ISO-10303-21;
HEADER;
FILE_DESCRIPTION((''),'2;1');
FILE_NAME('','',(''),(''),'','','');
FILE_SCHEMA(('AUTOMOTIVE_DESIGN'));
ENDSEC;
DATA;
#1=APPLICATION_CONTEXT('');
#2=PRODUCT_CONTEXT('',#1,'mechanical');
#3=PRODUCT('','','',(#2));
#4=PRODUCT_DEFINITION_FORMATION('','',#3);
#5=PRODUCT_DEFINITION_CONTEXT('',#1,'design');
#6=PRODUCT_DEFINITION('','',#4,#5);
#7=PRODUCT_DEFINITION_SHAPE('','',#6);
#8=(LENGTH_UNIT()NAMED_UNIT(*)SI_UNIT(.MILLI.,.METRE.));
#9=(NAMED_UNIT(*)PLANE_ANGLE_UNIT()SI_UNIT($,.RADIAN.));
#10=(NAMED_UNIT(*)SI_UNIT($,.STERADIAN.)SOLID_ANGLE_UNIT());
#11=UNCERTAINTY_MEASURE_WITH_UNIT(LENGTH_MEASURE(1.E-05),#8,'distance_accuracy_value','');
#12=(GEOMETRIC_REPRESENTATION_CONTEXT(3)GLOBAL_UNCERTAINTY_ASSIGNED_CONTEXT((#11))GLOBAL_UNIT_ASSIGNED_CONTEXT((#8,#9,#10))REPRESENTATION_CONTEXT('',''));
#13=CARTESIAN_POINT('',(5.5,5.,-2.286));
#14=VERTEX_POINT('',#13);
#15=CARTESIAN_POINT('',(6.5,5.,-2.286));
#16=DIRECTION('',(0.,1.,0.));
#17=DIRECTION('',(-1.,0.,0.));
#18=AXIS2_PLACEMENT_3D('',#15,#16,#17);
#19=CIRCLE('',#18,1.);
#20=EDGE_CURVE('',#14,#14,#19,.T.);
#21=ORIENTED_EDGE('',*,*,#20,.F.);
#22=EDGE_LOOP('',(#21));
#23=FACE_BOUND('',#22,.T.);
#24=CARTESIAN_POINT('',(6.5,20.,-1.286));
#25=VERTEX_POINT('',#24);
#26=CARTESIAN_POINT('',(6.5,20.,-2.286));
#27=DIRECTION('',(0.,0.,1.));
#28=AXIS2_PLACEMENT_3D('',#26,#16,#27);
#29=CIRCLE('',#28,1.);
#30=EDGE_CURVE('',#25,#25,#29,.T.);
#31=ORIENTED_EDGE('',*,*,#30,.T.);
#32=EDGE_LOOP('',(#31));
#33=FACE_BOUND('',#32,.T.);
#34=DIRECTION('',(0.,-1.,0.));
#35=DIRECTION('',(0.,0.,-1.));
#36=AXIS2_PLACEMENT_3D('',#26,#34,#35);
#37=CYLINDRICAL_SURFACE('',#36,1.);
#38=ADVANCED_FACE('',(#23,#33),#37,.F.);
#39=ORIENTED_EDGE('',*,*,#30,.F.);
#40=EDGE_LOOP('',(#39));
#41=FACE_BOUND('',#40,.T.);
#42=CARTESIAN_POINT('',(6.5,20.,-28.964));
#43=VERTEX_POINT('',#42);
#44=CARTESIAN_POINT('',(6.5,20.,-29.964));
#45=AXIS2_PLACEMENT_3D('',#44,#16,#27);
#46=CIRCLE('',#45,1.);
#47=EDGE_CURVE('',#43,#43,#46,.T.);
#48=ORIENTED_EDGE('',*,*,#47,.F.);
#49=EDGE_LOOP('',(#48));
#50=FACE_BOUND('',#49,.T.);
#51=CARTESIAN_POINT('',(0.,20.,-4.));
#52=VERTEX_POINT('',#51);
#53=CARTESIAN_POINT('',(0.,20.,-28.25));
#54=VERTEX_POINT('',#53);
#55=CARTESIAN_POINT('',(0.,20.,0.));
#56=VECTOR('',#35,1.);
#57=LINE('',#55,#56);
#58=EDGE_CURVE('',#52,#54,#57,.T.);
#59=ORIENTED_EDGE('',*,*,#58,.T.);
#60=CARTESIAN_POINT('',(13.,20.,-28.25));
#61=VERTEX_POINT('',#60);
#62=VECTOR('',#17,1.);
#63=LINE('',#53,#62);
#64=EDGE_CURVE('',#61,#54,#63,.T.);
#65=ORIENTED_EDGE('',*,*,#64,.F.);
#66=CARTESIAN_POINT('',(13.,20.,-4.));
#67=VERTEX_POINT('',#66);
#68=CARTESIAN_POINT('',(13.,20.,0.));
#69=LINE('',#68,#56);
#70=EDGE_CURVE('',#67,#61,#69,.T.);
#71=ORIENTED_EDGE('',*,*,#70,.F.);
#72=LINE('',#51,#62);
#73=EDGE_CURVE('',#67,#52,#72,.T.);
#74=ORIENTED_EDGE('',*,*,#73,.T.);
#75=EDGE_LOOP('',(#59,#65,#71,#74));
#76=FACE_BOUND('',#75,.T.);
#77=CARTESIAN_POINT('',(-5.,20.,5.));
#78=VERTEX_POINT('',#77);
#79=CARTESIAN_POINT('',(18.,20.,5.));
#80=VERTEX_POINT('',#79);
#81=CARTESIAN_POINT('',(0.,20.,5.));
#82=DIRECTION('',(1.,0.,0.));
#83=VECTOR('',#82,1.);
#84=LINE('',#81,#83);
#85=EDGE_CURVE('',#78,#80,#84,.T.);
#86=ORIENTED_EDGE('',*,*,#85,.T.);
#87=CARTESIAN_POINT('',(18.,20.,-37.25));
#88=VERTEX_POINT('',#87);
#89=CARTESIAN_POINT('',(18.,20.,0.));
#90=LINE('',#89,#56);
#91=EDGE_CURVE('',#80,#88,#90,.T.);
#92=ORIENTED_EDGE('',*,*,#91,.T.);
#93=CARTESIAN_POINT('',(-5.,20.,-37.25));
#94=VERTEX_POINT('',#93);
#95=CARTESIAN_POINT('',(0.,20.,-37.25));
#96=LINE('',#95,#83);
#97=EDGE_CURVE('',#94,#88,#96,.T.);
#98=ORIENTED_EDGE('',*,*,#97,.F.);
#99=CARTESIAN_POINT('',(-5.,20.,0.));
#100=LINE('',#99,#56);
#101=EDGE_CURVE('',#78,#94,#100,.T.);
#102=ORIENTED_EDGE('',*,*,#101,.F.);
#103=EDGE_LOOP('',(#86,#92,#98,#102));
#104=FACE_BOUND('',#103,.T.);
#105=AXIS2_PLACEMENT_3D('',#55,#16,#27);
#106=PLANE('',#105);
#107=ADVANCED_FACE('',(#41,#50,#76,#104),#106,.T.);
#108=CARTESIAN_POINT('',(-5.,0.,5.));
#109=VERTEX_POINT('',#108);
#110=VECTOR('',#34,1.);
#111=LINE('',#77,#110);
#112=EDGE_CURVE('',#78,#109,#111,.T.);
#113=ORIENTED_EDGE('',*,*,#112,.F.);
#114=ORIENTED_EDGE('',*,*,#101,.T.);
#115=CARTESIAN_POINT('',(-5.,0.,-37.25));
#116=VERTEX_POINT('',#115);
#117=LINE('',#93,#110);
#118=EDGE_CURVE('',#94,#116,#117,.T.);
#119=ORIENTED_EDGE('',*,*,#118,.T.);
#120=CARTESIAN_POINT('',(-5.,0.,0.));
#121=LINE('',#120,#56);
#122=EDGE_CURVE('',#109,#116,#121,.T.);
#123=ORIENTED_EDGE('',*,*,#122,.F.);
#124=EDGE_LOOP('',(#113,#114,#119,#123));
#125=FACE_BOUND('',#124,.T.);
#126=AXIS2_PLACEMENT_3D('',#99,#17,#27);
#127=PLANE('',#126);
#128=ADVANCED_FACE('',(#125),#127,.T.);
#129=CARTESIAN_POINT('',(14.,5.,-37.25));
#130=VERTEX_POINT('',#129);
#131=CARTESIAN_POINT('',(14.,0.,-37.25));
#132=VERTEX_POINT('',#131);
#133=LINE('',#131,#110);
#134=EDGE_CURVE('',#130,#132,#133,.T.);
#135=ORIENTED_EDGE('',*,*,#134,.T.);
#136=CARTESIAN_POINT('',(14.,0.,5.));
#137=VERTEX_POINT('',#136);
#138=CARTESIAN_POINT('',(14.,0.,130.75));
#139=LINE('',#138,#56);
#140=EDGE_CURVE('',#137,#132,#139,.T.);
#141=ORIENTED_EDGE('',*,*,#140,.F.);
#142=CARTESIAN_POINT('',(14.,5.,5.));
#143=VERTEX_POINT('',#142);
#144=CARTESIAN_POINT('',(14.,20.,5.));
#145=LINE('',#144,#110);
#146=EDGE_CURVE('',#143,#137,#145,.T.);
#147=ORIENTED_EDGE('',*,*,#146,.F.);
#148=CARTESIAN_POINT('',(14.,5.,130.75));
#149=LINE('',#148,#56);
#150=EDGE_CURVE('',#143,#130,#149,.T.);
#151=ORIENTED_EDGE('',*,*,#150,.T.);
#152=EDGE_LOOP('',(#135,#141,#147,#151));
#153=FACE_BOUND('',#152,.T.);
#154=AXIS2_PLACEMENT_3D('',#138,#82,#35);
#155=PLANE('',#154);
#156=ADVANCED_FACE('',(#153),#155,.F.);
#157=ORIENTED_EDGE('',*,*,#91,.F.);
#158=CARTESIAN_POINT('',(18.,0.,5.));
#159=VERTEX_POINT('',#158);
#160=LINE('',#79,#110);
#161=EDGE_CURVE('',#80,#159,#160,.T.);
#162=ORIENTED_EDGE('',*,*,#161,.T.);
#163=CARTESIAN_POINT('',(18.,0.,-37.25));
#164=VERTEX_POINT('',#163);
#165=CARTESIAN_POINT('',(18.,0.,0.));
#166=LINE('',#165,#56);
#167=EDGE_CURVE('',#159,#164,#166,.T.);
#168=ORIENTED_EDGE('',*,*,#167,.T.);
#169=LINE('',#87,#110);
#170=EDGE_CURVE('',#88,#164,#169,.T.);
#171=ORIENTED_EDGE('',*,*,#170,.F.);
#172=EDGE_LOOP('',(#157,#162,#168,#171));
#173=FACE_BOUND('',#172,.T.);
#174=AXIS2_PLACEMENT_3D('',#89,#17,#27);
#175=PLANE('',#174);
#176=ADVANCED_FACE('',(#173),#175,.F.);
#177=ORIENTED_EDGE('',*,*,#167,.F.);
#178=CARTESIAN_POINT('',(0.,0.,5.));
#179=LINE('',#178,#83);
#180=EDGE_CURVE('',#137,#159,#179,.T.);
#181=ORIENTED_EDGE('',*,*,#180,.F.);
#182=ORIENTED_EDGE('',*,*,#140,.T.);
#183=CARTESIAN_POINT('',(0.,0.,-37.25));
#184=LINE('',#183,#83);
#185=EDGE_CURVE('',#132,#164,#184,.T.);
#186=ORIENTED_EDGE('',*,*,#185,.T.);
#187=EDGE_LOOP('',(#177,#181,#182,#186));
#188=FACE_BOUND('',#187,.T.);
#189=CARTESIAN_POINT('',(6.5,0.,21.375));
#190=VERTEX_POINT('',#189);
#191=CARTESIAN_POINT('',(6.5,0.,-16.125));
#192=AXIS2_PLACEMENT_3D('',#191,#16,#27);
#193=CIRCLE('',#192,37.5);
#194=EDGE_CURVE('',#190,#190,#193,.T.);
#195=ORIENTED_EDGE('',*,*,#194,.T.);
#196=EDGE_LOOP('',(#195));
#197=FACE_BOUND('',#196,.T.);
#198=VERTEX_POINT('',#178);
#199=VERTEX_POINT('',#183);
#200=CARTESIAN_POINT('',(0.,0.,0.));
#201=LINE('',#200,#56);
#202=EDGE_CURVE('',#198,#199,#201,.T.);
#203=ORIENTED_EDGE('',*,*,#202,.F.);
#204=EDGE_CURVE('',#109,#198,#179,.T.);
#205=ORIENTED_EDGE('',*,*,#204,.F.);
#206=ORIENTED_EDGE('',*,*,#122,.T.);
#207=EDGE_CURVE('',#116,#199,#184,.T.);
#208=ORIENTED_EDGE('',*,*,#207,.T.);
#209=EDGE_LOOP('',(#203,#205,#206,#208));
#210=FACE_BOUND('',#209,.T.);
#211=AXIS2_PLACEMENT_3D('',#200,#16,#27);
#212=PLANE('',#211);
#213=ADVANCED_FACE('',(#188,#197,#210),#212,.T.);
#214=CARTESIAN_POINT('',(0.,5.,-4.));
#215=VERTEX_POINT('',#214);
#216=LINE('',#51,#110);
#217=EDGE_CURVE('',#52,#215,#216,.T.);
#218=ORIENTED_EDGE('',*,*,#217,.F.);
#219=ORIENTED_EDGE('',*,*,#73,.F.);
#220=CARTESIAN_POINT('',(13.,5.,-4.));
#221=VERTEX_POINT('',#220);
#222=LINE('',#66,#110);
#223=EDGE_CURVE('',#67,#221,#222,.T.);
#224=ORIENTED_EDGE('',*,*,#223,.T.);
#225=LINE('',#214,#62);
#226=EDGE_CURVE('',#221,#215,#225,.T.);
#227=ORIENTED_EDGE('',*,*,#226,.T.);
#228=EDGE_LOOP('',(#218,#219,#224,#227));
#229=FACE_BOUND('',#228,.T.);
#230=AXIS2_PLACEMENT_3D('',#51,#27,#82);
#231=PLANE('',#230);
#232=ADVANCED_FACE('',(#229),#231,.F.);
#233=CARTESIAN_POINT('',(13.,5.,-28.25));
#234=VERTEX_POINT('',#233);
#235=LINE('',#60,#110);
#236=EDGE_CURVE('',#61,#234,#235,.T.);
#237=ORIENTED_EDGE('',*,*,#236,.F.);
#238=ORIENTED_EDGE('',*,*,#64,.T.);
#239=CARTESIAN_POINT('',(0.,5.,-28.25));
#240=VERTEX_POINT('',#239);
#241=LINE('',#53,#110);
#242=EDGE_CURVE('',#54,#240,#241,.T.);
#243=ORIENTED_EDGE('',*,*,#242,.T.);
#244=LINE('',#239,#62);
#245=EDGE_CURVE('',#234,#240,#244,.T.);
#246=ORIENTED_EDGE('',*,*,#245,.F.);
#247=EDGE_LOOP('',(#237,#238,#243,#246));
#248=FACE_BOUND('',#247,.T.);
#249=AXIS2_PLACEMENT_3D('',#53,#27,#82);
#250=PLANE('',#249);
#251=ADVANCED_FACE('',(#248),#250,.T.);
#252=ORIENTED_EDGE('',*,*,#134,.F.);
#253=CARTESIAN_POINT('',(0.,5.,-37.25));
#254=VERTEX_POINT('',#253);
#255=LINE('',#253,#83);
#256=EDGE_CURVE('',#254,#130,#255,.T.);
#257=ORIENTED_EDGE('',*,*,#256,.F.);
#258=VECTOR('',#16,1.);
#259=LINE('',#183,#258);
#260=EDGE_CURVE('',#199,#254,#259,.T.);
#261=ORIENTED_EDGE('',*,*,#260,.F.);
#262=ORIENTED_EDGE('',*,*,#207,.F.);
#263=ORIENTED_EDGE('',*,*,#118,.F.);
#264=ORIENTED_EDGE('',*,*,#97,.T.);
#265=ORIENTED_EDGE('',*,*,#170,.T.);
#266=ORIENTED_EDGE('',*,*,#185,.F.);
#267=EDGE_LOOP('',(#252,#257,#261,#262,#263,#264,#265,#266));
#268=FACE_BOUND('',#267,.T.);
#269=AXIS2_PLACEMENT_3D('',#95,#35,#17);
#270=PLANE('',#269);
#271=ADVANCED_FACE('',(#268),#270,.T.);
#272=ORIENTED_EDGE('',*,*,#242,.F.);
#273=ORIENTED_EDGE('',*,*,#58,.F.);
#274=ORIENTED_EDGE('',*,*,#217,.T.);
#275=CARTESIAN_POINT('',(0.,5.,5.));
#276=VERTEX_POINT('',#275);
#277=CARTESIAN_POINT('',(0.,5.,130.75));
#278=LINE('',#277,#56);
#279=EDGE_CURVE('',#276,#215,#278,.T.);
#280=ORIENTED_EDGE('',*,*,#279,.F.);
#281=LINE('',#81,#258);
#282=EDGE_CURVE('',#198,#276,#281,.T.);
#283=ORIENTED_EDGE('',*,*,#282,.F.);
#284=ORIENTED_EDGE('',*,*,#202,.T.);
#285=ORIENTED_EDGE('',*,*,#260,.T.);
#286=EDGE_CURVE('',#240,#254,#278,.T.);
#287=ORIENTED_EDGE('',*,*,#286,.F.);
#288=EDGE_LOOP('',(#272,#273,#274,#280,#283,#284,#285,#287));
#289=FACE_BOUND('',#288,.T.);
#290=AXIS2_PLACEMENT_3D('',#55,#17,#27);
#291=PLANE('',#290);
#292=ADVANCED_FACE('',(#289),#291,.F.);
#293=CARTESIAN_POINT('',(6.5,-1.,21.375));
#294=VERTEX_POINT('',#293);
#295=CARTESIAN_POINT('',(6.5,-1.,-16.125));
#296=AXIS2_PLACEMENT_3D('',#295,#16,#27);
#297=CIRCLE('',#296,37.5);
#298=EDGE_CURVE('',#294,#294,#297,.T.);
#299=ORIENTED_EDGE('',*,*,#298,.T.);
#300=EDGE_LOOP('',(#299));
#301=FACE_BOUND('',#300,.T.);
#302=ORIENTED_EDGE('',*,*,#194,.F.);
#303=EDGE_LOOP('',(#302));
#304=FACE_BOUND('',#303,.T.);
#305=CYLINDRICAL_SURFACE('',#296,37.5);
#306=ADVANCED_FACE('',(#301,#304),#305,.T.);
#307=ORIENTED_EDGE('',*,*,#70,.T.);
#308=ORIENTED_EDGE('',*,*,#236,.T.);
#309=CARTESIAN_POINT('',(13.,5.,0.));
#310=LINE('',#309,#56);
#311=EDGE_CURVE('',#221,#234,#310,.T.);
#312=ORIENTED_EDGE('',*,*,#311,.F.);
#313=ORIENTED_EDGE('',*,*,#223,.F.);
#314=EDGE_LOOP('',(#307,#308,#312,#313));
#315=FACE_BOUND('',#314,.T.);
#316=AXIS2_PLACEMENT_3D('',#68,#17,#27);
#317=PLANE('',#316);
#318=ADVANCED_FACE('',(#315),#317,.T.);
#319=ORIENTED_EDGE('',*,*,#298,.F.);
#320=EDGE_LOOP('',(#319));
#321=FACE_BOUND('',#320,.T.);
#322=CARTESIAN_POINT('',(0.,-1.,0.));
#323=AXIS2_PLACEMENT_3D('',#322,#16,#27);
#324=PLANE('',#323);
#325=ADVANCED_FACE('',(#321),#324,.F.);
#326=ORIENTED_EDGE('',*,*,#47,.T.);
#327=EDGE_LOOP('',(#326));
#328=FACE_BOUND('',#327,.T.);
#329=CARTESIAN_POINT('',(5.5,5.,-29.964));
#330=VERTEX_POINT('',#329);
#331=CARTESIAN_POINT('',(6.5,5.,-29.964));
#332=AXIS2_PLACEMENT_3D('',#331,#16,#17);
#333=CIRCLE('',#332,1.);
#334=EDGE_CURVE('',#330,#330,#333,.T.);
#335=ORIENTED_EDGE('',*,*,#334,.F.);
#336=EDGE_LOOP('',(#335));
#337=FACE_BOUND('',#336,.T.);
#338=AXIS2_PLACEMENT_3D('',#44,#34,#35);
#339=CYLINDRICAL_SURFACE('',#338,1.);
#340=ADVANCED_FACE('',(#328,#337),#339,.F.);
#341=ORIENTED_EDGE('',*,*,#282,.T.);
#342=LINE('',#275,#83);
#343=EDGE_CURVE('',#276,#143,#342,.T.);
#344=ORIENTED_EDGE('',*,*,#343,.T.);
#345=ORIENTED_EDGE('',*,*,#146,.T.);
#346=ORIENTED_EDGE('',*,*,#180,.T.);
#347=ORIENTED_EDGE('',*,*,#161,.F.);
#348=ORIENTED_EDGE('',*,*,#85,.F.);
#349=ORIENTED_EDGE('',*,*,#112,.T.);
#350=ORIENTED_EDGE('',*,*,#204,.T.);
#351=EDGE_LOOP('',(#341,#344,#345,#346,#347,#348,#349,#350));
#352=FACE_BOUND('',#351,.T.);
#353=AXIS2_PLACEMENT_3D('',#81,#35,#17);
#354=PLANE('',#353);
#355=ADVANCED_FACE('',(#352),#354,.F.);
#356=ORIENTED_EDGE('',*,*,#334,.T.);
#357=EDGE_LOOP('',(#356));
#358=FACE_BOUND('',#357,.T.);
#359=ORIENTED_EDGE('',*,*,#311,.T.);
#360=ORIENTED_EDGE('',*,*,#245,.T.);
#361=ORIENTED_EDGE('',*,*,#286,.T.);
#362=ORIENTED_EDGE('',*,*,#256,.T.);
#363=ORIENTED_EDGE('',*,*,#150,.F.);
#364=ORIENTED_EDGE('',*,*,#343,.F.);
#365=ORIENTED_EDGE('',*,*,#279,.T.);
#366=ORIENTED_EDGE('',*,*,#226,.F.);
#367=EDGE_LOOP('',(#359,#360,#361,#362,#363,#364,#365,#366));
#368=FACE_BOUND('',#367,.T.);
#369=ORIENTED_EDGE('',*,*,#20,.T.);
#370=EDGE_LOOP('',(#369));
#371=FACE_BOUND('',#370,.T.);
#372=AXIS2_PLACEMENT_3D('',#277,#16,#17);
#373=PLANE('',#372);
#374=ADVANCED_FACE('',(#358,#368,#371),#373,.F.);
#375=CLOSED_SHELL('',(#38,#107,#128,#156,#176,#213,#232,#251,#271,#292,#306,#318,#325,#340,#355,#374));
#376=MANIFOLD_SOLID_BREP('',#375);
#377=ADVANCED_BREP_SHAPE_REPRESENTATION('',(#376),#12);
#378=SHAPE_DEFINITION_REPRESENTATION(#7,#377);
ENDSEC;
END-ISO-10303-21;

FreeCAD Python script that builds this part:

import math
import FreeCAD as App
import Part
import Sketcher

V = App.Vector
Q = App.Units.Quantity


def add_polygon(sketch, points):
    """Adds a closed chain of lines whose ends are joined by coincident constraints."""
    first, n = sketch.GeometryCount, len(points)
    for a, b in zip(points, points[1:] + points[:1]):
        sketch.addGeometry(Part.LineSegment(App.Vector(*a, 0), App.Vector(*b, 0)), False)
    for i in range(n):
        sketch.addConstraint(Sketcher.Constraint("Coincident", first + i, 2, first + (i + 1) % n, 1))

doc = App.newDocument("Part")
params = doc.addObject("Spreadsheet::Sheet", "Params")
for row, (alias, value) in enumerate([
    ("sketch1_radius", "1 mm"),
    ("sketch1_width", "23 mm"),
    ("sketch1_width2", "13 mm"),
    ("sketch1_height", "42.25 mm"),
    ("pad1_length", "20 mm"),
    ("sketch2_diameter", "75 mm"),
    ("pad2_length", "1 mm"),
    ("sketch3_width", "14 mm"),
    ("sketch3_height", "5 mm"),
    ("pocket1_length", "168 mm"),
], start=1):
    params.set(f"A{row}", alias)
    params.set(f"B{row}", "=" + value)
    params.setAlias(f"B{row}", alias)

body = doc.addObject("PartDesign::Body", "Body")

# Sketch on XZ plane
sketch1 = body.newObject("Sketcher::SketchObject", "Sketch")
sketch1.AttachmentSupport = (doc.getObject("XZ_Plane"), [""])
sketch1.MapMode = "FlatFace"
add_polygon(sketch1, [(-5, -37.25), (-5, 5), (18, 5), (18, -37.25)])  # lines 0-3
add_polygon(sketch1, [(13, -28.25), (13, -4), (0, -4), (0, -28.25)])  # lines 4-7
sketch1.addGeometry(Part.ArcOfCircle(Part.Circle(V(6.5, -2.286, 0), V(0, 0, 1), 1), math.radians(90), math.radians(270)), False)  # 8
sketch1.addGeometry(Part.ArcOfCircle(Part.Circle(V(6.5, -2.286, 0), V(0, 0, 1), 1), math.radians(-90), math.radians(0)), False)  # 9
sketch1.addGeometry(Part.ArcOfCircle(Part.Circle(V(6.5, -2.286, 0), V(0, 0, 1), 1), math.radians(0), math.radians(90)), False)  # 10
sketch1.addGeometry(Part.ArcOfCircle(Part.Circle(V(6.5, -29.964, 0), V(0, 0, 1), 1), math.radians(0), math.radians(90)), False)  # 11
sketch1.addGeometry(Part.ArcOfCircle(Part.Circle(V(6.5, -29.964, 0), V(0, 0, 1), 1), math.radians(90), math.radians(270)), False)  # 12
sketch1.addGeometry(Part.ArcOfCircle(Part.Circle(V(6.5, -29.964, 0), V(0, 0, 1), 1), math.radians(-90), math.radians(0)), False)  # 13
sketch1.addConstraint(Sketcher.Constraint("Tangent", 8, 2, 9, 1))
sketch1.addConstraint(Sketcher.Constraint("Tangent", 9, 2, 10, 1))
sketch1.addConstraint(Sketcher.Constraint("Tangent", 10, 2, 8, 1))
sketch1.addConstraint(Sketcher.Constraint("Tangent", 11, 2, 12, 1))
sketch1.addConstraint(Sketcher.Constraint("Tangent", 12, 2, 13, 1))
sketch1.addConstraint(Sketcher.Constraint("Tangent", 13, 2, 11, 1))
sketch1.addConstraint(Sketcher.Constraint("Vertical", 0))
sketch1.addConstraint(Sketcher.Constraint("Horizontal", 1))
sketch1.addConstraint(Sketcher.Constraint("Vertical", 2))
sketch1.addConstraint(Sketcher.Constraint("Horizontal", 3))
sketch1.addConstraint(Sketcher.Constraint("Vertical", 4))
sketch1.addConstraint(Sketcher.Constraint("Horizontal", 5))
sketch1.addConstraint(Sketcher.Constraint("Vertical", 6))
sketch1.addConstraint(Sketcher.Constraint("Horizontal", 7))
sketch1.addConstraint(Sketcher.Constraint("Equal", 10, 11))
sketch1.addConstraint(Sketcher.Constraint("PointOnObject", 5, 2, -2))
sketch1.addConstraint(Sketcher.Constraint("Horizontal", 10, 3, 9, 2))
sketch1.addConstraint(Sketcher.Constraint("Horizontal", 12, 3, 13, 2))
sketch1.addConstraint(Sketcher.Constraint("Vertical", 10, 3, 11, 3))
sketch1.addConstraint(Sketcher.Constraint("Vertical", 13, 3, 8, 2))
sketch1.addConstraint(Sketcher.Constraint("Vertical", 8, 2, 10, 2))
sketch1.addConstraint(Sketcher.Constraint("Vertical", 10, 2, 11, 2))
sketch1.addConstraint(Sketcher.Constraint("Vertical", 11, 2, 12, 2))
sketch1.addConstraint(Sketcher.Constraint("Radius", 8, Q("1 mm")))
sketch1.addConstraint(Sketcher.Constraint("DistanceX", 1, 1, 1, 2, Q("23 mm")))
sketch1.addConstraint(Sketcher.Constraint("DistanceX", 5, 2, 5, 1, Q("13 mm")))
sketch1.addConstraint(Sketcher.Constraint("DistanceX", 0, 2, -1, 1, Q("5 mm")))
sketch1.addConstraint(Sketcher.Constraint("DistanceY", -1, 1, 0, 2, Q("5 mm")))
sketch1.addConstraint(Sketcher.Constraint("DistanceY", 4, 2, -1, 1, Q("4 mm")))
sketch1.addConstraint(Sketcher.Constraint("DistanceY", 3, 2, 6, 2, Q("9 mm")))
sketch1.addConstraint(Sketcher.Constraint("DistanceY", 0, 1, 0, 2, Q("42.25 mm")))
sketch1.addConstraint(Sketcher.Constraint("DistanceX", -1, 1, 8, 3, Q("6.5 mm")))
sketch1.addConstraint(Sketcher.Constraint("DistanceY", 8, 3, -1, 1, Q("2.286 mm")))
sketch1.addConstraint(Sketcher.Constraint("DistanceY", 11, 3, -1, 1, Q("29.964 mm")))
sketch1.setExpression("Constraints[31]", "Params.sketch1_radius")
sketch1.setExpression("Constraints[32]", "Params.sketch1_width")
sketch1.setExpression("Constraints[33]", "Params.sketch1_width2")
sketch1.setExpression("Constraints[38]", "Params.sketch1_height")
pad1 = body.newObject("PartDesign::Pad", "Pad")
pad1.Profile = sketch1
pad1.setExpression("Length", "Params.pad1_length")
pad1.Reversed = True

# Sketch on XZ plane
sketch2 = body.newObject("Sketcher::SketchObject", "Sketch001")
sketch2.AttachmentSupport = (doc.getObject("XZ_Plane"), [""])
sketch2.MapMode = "FlatFace"
sketch2.AttachmentOffset = App.Placement(V(0, 0, 1), App.Rotation())
sketch2.addGeometry(Part.Circle(V(6.5, -16.125, 0), V(0, 0, 1), 37.5), False)
sketch2.addConstraint(Sketcher.Constraint("Diameter", 0, Q("75 mm")))
sketch2.addConstraint(Sketcher.Constraint("DistanceX", -1, 1, 0, 3, Q("6.5 mm")))
sketch2.addConstraint(Sketcher.Constraint("DistanceY", 0, 3, -1, 1, Q("16.125 mm")))
sketch2.setExpression("Constraints[0]", "Params.sketch2_diameter")
pad2 = body.newObject("PartDesign::Pad", "Pad001")
pad2.Profile = sketch2
pad2.setExpression("Length", "Params.pad2_length")
pad2.Reversed = True

# Sketch on XY plane
sketch3 = body.newObject("Sketcher::SketchObject", "Sketch002")
sketch3.AttachmentSupport = (doc.getObject("XY_Plane"), [""])
sketch3.MapMode = "FlatFace"
sketch3.AttachmentOffset = App.Placement(V(0, 0, -37.25), App.Rotation())
add_polygon(sketch3, [(14, 5), (14, 0), (0, 0), (0, 5)])  # lines 0-3
sketch3.addConstraint(Sketcher.Constraint("Vertical", 0))
sketch3.addConstraint(Sketcher.Constraint("Horizontal", 1))
sketch3.addConstraint(Sketcher.Constraint("Vertical", 2))
sketch3.addConstraint(Sketcher.Constraint("Horizontal", 3))
sketch3.addConstraint(Sketcher.Constraint("Coincident", 1, 2, -1, 1))
sketch3.addConstraint(Sketcher.Constraint("DistanceX", 1, 2, 1, 1, Q("14 mm")))
sketch3.addConstraint(Sketcher.Constraint("DistanceY", 0, 2, 0, 1, Q("5 mm")))
sketch3.setExpression("Constraints[9]", "Params.sketch3_width")
sketch3.setExpression("Constraints[10]", "Params.sketch3_height")
pocket1 = body.newObject("PartDesign::Pocket", "Pocket")
pocket1.Profile = sketch3
pocket1.setExpression("Length", "Params.pocket1_length")
pocket1.Reversed = True

doc.recompute()
